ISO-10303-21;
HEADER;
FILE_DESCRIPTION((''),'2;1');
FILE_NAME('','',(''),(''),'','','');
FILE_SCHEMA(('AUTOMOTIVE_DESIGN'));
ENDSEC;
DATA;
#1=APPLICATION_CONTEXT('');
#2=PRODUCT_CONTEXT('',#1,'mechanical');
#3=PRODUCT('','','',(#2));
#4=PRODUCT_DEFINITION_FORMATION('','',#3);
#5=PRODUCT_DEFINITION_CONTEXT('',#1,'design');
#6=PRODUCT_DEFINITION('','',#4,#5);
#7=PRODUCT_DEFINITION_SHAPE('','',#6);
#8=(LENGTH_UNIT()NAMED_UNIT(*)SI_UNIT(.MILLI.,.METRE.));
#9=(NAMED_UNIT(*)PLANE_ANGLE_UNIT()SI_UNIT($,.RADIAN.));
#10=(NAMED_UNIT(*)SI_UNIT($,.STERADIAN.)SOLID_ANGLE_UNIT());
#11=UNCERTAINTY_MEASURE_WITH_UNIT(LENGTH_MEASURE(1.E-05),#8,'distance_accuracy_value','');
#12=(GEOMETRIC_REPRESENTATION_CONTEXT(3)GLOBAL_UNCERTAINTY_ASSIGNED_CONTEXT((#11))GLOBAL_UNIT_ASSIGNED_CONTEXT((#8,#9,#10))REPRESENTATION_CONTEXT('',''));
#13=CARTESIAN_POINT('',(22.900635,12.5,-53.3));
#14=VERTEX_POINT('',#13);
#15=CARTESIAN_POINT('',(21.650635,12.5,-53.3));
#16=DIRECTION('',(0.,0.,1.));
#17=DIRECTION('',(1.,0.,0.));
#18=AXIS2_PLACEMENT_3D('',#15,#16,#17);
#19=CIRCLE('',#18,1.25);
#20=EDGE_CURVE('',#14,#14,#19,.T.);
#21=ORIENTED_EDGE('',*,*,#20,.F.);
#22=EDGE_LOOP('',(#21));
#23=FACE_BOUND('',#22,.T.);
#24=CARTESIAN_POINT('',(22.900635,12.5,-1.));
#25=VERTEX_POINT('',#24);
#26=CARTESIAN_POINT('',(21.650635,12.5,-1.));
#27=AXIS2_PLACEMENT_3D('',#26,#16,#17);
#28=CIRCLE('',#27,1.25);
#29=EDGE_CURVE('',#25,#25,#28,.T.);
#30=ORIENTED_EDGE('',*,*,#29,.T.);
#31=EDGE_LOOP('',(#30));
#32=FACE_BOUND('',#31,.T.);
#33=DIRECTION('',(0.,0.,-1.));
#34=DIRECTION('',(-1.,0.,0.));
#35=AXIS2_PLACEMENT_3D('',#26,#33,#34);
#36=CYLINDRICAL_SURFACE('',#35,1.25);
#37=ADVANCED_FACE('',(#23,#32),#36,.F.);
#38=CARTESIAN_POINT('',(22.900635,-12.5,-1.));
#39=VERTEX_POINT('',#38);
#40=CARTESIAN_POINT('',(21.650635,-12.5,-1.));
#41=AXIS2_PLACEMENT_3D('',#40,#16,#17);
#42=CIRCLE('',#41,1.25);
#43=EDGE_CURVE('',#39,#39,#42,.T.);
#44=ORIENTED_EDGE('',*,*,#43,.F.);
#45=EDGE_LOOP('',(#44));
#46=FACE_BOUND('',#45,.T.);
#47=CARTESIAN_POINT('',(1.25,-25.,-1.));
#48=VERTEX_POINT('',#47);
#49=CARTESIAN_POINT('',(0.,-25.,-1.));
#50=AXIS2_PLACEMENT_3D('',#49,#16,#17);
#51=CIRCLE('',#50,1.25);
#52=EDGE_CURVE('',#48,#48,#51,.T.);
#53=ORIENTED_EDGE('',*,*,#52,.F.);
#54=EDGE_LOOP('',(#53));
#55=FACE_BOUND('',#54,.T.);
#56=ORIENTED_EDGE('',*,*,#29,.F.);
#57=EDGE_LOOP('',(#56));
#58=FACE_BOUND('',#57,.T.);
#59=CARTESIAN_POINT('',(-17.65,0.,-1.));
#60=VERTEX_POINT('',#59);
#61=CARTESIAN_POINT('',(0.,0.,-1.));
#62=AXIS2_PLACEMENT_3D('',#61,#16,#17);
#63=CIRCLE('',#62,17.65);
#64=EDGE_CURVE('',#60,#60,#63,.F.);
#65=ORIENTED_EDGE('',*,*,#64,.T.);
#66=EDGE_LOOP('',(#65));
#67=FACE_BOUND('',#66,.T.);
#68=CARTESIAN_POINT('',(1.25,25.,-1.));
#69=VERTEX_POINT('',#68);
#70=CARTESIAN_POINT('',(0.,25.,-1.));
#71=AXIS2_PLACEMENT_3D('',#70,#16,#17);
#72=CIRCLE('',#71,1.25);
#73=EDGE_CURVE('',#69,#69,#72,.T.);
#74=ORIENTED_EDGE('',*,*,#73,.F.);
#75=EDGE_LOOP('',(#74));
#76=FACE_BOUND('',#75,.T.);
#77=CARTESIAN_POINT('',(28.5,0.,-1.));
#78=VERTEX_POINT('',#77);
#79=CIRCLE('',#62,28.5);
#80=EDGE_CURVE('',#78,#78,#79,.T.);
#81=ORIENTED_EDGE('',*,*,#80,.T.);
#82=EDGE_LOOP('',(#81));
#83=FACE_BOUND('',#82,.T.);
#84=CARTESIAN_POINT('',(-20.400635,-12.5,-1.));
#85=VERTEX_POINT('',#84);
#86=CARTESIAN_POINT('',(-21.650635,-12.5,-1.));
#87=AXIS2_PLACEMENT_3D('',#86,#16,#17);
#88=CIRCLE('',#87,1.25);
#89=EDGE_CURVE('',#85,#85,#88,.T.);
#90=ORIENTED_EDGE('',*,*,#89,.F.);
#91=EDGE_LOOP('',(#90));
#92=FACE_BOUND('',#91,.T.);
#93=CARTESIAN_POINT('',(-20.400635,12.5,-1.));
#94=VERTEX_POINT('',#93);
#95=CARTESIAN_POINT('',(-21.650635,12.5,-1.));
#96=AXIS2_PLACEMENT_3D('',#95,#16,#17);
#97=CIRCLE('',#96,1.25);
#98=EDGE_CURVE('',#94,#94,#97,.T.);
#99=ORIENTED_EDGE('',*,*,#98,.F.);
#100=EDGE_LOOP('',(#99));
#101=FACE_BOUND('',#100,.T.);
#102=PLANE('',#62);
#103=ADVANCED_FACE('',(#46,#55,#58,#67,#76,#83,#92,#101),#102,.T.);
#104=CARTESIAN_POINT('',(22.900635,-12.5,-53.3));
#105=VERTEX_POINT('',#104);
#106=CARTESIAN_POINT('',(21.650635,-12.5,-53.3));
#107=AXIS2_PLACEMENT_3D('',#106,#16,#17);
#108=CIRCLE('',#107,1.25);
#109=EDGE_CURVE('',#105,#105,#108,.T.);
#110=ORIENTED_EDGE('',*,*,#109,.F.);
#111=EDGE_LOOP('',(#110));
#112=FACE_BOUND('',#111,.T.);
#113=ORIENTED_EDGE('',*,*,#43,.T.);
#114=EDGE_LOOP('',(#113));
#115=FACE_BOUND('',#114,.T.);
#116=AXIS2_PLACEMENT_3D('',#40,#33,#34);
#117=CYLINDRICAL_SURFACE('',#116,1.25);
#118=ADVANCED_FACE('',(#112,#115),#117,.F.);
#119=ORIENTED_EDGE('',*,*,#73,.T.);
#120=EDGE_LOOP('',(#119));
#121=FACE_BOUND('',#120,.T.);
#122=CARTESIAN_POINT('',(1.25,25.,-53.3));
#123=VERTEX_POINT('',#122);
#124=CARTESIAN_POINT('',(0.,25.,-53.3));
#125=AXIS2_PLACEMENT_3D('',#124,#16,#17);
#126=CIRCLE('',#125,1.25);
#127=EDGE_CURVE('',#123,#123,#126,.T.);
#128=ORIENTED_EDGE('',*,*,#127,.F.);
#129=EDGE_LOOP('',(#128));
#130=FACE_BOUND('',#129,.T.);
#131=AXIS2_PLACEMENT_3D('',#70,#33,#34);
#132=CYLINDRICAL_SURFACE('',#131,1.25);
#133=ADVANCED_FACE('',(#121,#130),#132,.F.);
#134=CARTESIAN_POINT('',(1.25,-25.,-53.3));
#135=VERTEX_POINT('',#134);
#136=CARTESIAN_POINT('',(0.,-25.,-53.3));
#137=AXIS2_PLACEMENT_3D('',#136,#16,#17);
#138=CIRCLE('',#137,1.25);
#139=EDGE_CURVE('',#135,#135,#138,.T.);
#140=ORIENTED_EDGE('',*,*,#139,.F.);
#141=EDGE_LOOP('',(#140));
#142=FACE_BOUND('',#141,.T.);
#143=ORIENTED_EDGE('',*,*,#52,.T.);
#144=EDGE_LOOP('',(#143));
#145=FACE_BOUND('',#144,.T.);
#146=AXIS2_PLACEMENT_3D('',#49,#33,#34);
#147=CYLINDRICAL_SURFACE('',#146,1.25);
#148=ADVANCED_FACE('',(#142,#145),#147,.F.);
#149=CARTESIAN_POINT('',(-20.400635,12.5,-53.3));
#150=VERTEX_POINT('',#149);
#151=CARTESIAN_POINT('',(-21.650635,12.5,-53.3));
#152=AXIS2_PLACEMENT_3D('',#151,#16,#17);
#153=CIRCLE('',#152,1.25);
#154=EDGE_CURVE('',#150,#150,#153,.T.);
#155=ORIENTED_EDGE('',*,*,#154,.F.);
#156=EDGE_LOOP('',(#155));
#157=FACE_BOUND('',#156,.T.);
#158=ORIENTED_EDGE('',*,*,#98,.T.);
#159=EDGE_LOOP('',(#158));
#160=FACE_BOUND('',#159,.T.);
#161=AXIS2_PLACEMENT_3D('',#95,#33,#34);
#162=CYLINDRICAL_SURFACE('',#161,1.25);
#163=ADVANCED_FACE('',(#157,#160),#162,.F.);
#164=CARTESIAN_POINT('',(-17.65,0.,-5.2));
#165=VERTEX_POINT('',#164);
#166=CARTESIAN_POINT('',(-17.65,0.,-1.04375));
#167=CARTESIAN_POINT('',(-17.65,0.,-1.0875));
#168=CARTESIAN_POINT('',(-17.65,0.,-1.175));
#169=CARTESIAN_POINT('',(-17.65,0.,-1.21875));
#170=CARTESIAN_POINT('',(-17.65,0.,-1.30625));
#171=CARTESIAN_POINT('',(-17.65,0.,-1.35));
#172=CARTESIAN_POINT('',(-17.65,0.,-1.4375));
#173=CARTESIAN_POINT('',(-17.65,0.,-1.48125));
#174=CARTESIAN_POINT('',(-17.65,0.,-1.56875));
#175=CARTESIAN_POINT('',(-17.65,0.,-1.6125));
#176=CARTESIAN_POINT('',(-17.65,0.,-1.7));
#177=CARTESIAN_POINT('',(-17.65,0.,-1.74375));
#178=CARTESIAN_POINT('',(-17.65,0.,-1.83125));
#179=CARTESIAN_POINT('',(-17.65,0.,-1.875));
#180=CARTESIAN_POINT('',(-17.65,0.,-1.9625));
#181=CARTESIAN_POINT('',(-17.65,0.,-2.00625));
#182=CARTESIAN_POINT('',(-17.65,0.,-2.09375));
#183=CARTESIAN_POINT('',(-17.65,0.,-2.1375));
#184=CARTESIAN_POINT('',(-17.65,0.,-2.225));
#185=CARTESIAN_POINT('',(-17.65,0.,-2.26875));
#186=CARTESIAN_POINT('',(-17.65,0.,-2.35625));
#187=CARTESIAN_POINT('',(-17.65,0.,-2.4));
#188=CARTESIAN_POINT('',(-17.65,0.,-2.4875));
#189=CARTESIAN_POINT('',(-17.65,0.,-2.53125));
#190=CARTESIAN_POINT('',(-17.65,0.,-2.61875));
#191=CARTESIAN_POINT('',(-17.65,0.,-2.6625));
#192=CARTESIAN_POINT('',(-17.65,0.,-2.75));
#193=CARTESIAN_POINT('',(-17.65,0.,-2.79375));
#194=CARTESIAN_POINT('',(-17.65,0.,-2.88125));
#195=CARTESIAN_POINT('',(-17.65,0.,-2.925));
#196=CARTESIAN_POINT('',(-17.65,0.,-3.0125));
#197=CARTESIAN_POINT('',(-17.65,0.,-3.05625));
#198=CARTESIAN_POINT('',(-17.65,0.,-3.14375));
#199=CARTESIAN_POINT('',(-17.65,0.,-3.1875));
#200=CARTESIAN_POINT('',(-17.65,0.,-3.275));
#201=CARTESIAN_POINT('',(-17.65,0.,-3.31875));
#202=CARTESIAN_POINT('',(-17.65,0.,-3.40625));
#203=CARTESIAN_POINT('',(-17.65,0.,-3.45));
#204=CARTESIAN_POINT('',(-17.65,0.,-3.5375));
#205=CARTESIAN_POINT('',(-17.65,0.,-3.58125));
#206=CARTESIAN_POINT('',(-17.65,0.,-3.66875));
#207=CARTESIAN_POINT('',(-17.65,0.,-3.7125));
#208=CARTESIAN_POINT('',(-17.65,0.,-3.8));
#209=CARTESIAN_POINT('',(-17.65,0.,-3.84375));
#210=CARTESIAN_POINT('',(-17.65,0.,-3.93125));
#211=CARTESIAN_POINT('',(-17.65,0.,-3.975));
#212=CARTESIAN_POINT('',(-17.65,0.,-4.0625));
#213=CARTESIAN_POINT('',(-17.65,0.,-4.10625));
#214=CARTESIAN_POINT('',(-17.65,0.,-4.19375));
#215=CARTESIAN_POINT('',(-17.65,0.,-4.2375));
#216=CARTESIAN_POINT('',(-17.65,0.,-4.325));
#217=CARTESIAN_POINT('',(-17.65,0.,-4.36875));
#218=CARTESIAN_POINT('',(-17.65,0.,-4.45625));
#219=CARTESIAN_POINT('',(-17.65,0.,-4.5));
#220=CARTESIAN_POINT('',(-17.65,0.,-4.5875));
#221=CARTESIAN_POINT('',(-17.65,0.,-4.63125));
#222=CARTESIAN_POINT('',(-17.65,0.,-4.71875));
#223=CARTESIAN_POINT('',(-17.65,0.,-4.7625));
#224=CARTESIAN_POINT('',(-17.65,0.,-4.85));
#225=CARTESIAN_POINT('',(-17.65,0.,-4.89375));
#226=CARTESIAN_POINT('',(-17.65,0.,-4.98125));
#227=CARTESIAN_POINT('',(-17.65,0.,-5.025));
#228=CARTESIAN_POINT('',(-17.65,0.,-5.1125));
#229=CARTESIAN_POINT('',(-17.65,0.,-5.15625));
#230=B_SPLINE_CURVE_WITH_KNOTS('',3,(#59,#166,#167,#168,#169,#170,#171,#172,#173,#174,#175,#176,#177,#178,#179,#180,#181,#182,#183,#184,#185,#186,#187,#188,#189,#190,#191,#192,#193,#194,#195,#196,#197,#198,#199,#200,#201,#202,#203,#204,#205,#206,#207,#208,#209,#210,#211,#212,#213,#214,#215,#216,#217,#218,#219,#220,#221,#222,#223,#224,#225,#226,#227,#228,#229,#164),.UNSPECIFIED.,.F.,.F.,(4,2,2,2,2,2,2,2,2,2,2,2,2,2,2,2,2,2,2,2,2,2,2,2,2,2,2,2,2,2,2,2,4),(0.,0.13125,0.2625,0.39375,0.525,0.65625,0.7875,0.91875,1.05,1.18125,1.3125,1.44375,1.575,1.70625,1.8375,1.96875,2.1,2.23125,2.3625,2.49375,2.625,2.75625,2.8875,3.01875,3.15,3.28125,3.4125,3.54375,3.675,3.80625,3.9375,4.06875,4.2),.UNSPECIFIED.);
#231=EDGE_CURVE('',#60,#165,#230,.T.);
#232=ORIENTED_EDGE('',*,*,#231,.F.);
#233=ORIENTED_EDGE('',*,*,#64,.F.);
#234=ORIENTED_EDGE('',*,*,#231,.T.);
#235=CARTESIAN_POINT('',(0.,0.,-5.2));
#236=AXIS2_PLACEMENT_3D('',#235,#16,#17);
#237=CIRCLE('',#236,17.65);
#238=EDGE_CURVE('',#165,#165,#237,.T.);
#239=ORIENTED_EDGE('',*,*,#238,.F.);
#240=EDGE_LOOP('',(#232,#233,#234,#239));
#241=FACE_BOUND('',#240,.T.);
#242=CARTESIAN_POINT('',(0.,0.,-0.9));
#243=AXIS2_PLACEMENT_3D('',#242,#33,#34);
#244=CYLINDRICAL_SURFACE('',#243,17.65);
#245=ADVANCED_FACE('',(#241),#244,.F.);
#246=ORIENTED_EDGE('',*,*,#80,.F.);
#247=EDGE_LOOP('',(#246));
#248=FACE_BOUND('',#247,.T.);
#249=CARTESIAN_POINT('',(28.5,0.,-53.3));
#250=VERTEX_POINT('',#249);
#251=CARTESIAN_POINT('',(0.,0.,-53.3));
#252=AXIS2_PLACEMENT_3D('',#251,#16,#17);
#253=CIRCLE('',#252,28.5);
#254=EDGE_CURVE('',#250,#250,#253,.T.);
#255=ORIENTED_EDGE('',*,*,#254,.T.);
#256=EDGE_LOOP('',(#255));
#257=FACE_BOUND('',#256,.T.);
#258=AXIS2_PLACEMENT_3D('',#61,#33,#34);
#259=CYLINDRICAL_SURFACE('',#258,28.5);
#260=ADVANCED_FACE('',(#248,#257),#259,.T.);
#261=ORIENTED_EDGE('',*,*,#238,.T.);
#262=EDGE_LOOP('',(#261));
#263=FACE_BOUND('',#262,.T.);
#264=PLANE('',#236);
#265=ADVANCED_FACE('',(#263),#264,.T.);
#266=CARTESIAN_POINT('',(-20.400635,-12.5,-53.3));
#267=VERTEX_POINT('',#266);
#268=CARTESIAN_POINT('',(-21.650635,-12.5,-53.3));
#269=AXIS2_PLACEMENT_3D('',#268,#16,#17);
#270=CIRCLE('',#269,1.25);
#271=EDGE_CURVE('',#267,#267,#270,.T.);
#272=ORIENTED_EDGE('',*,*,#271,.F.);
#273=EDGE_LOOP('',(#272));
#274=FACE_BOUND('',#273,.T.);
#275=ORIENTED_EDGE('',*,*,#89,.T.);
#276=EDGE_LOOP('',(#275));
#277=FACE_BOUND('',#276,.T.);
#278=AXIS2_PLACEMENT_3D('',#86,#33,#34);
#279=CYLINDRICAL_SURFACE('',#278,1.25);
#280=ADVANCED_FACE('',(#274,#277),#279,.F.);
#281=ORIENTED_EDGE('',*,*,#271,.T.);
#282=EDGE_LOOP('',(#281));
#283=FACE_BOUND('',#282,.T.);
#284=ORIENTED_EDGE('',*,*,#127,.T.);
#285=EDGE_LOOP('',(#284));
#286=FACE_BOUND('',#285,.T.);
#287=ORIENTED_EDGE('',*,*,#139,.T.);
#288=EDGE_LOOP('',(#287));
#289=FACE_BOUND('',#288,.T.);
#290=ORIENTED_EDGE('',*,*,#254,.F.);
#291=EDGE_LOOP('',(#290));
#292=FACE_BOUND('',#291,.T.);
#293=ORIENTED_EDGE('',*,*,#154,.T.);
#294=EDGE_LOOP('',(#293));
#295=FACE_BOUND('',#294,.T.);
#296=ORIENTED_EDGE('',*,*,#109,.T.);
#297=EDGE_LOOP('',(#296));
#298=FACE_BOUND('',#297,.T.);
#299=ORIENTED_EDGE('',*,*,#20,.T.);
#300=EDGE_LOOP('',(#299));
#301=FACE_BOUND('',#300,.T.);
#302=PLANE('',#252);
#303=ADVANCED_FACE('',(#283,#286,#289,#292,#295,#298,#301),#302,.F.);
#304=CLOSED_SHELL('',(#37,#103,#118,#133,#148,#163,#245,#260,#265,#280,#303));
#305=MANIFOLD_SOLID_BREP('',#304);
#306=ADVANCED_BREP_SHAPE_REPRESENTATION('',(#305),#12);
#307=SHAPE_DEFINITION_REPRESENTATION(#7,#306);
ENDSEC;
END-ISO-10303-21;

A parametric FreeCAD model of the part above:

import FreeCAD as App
import Part
import Sketcher
from FreeCAD import Vector

doc = App.newDocument("Part")
params = doc.addObject("Spreadsheet::Sheet", "Params")
for row, (alias, value) in enumerate([
    ("sketch1_diameter", "57 mm"),
    ("sketch1_diameter2", "2.5 mm"),
    ("pad1_length", "52.3 mm"),
    ("sketch2_diameter", "35.3 mm"),
    ("pocket1_length", "4.3 mm"),
], start=1):
    params.set(f"A{row}", alias)
    params.set(f"B{row}", "=" + value)
    params.setAlias(f"B{row}", alias)

body = doc.addObject("PartDesign::Body", "Body")

# Sketch on XY plane
sketch1 = body.newObject("Sketcher::SketchObject", "Sketch")
sketch1.AttachmentSupport = (doc.getObject("XY_Plane"), [""])
sketch1.MapMode = "FlatFace"
sketch1.AttachmentOffset = App.Placement(Vector(0, 0, -53.3), App.Rotation())
sketch1.addGeometry(Part.Circle(Vector(0, 0, 0), Vector(0, 0, 1), 28.5), False)
sketch1.addGeometry(Part.Circle(Vector(-21.650635, -12.5, 0), Vector(0, 0, 1), 1.25), False)
sketch1.addGeometry(Part.Circle(Vector(0, -25, 0), Vector(0, 0, 1), 1.25), False)
sketch1.addGeometry(Part.Circle(Vector(21.650635, -12.5, 0), Vector(0, 0, 1), 1.25), False)
sketch1.addGeometry(Part.Circle(Vector(-21.650635, 12.5, 0), Vector(0, 0, 1), 1.25), False)
sketch1.addGeometry(Part.Circle(Vector(21.650635, 12.5, 0), Vector(0, 0, 1), 1.25), False)
sketch1.addGeometry(Part.Circle(Vector(0, 25, 0), Vector(0, 0, 1), 1.25), False)
sketch1.addConstraint(Sketcher.Constraint("Coincident", 0, 3, -1, 1))
sketch1.addConstraint(Sketcher.Constraint("Equal", 1, 2))
sketch1.addConstraint(Sketcher.Constraint("Equal", 2, 3))
sketch1.addConstraint(Sketcher.Constraint("Equal", 3, 4))
sketch1.addConstraint(Sketcher.Constraint("Equal", 4, 5))
sketch1.addConstraint(Sketcher.Constraint("Equal", 5, 6))
sketch1.addConstraint(Sketcher.Constraint("Symmetric", 3, 3, 4, 3, -1, 1))
sketch1.addConstraint(Sketcher.Constraint("Symmetric", 1, 3, 5, 3, -1, 1))
sketch1.addConstraint(Sketcher.Constraint("Symmetric", 2, 3, 6, 3, -1, 1))
sketch1.addConstraint(Sketcher.Constraint("Symmetric", 1, 3, 3, 3, -2))
sketch1.addConstraint(Sketcher.Constraint("PointOnObject", 2, 3, -2))
sketch1.addConstraint(Sketcher.Constraint("Diameter", 0, 57.0))
sketch1.addConstraint(Sketcher.Constraint("Diameter", 1, 2.5))
sketch1.addConstraint(Sketcher.Constraint("DistanceY", 2, 3, -1, 1, 25.0))
sketch1.addConstraint(Sketcher.Constraint("DistanceY", 1, 3, 4, 3, 25.0))
sketch1.addConstraint(Sketcher.Constraint("DistanceX", 1, 3, 3, 3, 43.30127))
sketch1.setExpression("Constraints[11]", "Params.sketch1_diameter")
sketch1.setExpression("Constraints[12]", "Params.sketch1_diameter2")
pad1 = body.newObject("PartDesign::Pad", "Pad")
pad1.Profile = sketch1
pad1.setExpression("Length", "Params.pad1_length")

# Sketch on XY plane
sketch2 = body.newObject("Sketcher::SketchObject", "Sketch001")
sketch2.AttachmentSupport = (doc.getObject("XY_Plane"), [""])
sketch2.MapMode = "FlatFace"
sketch2.AttachmentOffset = App.Placement(Vector(0, 0, -5.2), App.Rotation())
sketch2.addGeometry(Part.Circle(Vector(0, 0, 0), Vector(0, 0, 1), 17.65), False)
sketch2.addConstraint(Sketcher.Constraint("Coincident", 0, 3, -1, 1))
sketch2.addConstraint(Sketcher.Constraint("Diameter", 0, 35.3))
sketch2.setExpression("Constraints[1]", "Params.sketch2_diameter")
pocket1 = body.newObject("PartDesign::Pocket", "Pocket")
pocket1.Profile = sketch2
pocket1.setExpression("Length", "Params.pocket1_length")
pocket1.Reversed = True

doc.recompute()
